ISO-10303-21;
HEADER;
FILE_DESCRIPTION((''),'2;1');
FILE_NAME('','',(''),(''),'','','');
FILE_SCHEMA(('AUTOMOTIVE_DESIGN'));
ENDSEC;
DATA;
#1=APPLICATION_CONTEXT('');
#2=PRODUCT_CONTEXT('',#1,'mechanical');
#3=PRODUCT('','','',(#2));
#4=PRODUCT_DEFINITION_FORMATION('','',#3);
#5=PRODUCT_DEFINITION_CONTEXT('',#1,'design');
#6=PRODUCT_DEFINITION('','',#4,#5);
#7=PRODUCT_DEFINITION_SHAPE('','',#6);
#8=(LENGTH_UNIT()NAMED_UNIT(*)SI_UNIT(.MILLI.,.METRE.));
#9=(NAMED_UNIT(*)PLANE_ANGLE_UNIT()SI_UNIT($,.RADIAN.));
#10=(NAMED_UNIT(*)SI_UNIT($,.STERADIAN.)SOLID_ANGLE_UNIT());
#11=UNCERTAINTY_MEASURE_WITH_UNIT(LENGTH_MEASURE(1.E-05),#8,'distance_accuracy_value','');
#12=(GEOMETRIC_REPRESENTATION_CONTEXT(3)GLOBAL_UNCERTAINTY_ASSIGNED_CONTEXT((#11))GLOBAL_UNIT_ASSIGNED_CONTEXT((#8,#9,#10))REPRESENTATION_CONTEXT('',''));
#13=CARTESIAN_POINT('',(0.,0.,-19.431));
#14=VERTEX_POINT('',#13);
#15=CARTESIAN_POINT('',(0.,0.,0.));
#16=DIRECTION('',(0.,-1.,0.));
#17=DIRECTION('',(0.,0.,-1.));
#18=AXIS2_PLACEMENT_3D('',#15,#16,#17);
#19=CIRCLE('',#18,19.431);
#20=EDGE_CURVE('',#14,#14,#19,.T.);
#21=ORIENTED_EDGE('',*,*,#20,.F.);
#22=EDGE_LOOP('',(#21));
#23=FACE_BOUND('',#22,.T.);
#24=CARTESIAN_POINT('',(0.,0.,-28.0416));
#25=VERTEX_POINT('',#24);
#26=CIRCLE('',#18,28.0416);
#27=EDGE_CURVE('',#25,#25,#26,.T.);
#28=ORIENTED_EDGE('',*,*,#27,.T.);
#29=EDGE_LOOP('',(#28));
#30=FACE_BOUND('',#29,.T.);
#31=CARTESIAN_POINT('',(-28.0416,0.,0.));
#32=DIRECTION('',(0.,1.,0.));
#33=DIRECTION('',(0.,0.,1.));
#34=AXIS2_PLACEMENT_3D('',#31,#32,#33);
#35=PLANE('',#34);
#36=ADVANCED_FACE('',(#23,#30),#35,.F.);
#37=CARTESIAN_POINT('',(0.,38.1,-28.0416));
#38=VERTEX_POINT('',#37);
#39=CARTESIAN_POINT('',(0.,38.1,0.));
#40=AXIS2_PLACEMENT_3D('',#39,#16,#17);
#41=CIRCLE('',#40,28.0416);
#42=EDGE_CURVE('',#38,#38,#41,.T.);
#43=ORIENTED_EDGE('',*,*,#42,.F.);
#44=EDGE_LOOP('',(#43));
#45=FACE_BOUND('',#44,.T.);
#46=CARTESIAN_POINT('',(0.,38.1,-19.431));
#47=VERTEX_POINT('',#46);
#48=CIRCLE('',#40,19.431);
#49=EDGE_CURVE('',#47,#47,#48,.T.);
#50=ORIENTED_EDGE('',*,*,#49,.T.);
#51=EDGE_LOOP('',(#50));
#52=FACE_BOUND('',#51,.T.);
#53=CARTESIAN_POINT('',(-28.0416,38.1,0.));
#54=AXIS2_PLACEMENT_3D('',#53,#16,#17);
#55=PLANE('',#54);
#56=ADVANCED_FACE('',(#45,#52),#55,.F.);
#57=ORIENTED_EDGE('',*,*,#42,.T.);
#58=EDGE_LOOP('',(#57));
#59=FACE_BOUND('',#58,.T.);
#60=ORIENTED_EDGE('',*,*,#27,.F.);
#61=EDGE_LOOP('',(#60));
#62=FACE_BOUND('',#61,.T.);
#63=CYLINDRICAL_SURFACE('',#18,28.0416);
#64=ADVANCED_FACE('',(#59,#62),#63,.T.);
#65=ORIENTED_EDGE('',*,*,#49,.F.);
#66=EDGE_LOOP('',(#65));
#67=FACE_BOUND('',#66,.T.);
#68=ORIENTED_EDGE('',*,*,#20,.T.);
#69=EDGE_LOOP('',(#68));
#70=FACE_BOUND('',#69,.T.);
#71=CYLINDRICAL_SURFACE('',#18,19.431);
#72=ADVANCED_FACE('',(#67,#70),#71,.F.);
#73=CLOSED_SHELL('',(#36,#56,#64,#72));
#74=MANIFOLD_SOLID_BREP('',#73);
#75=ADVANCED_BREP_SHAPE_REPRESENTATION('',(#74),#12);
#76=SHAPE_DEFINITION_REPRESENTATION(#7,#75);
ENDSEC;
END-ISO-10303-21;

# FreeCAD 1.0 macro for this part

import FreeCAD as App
import Part
import Sketcher
from FreeCAD import Vector
Q = App.Units.Quantity


def add_polygon(sketch, points):
    """Adds a closed chain of lines whose ends are joined by coincident constraints."""
    first, n = sketch.GeometryCount, len(points)
    for a, b in zip(points, points[1:] + points[:1]):
        sketch.addGeometry(Part.LineSegment(App.Vector(*a, 0), App.Vector(*b, 0)), False)
    for i in range(n):
        sketch.addConstraint(Sketcher.Constraint("Coincident", first + i, 2, first + (i + 1) % n, 1))

doc = App.newDocument("Part")
params = doc.addObject("Spreadsheet::Sheet", "Params")
for row, (alias, value) in enumerate([
    ("sketch1_height", "1.5 in"),
    ("sketch1_width", "0.339 in"),
    ("revolution_angle", "360 deg"),
], start=1):
    params.set(f"A{row}", alias)
    params.set(f"B{row}", "=" + value)
    params.setAlias(f"B{row}", alias)

body = doc.addObject("PartDesign::Body", "Body")

sketch1 = body.newObject("Sketcher::SketchObject", "Sketch")
sketch1.AttachmentSupport = (doc.getObject("XY_Plane"), [""])
sketch1.MapMode = "FlatFace"
add_polygon(sketch1, [(-28.0416, 38.1), (-28.0416, 0), (-19.431, 0), (-19.431, 38.1)])
sketch1.addConstraint(Sketcher.Constraint("Vertical", 0))
sketch1.addConstraint(Sketcher.Constraint("Horizontal", 1))
sketch1.addConstraint(Sketcher.Constraint("Vertical", 2))
sketch1.addConstraint(Sketcher.Constraint("Horizontal", 3))
sketch1.addConstraint(Sketcher.Constraint("PointOnObject", 0, 2, -1))
sketch1.addConstraint(Sketcher.Constraint("DistanceY", 0, 2, 0, 1, Q("1.5 in")))
sketch1.addConstraint(Sketcher.Constraint("DistanceX", 1, 1, 1, 2, Q("0.339 in")))
sketch1.addConstraint(Sketcher.Constraint("DistanceX", 0, 2, -1, 1, Q("1.104 in")))
sketch1.setExpression("Constraints[9]", "Params.sketch1_height")
sketch1.setExpression("Constraints[10]", "Params.sketch1_width")
revolution = body.newObject("PartDesign::Revolution", "Revolution")
revolution.Profile = sketch1
revolution.ReferenceAxis = (sketch1, ["V_Axis"])
revolution.setExpression("Angle", "Params.revolution_angle")

doc.recompute()
